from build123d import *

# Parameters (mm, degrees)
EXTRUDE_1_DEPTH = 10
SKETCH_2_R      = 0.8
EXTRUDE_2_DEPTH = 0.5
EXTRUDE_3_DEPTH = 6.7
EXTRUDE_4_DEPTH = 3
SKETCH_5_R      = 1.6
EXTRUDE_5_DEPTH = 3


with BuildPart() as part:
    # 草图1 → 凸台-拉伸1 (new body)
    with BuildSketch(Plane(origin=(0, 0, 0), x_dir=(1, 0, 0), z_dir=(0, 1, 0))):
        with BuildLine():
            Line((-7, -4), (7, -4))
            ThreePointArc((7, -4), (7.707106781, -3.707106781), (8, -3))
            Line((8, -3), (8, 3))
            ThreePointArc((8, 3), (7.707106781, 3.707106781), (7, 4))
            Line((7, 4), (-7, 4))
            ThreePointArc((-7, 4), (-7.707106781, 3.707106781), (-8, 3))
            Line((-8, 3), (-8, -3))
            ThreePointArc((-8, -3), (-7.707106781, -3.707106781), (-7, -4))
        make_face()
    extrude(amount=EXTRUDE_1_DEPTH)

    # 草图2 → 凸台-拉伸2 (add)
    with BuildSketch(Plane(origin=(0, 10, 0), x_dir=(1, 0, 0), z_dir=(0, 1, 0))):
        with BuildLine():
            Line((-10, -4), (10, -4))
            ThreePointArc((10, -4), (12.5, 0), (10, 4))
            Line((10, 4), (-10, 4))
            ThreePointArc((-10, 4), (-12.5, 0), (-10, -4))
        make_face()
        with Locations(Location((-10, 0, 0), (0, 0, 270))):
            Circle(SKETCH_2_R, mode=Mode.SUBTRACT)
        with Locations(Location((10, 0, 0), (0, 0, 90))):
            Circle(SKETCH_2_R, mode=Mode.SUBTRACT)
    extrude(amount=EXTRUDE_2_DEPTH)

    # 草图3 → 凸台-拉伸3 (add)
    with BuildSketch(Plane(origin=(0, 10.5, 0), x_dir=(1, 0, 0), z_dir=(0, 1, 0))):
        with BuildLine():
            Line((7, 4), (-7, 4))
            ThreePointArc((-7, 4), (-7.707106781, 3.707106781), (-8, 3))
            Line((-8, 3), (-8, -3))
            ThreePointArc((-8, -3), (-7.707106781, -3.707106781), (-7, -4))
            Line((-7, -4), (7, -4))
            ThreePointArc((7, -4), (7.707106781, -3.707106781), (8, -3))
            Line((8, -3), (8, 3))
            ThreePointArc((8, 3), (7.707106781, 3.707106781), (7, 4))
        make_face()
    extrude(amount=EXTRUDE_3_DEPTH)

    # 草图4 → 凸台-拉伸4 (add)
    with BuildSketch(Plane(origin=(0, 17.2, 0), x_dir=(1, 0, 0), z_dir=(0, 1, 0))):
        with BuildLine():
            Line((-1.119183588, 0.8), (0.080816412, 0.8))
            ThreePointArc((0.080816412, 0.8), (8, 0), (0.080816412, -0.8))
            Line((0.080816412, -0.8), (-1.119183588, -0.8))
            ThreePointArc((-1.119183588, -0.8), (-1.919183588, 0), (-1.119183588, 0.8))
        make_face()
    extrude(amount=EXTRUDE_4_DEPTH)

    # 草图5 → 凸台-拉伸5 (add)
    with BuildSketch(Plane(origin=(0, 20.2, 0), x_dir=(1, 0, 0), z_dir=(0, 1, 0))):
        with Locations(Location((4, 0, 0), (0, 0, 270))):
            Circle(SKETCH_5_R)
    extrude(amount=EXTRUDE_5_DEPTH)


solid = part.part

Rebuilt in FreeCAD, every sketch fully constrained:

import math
import FreeCAD as App
import Part
import Sketcher
from FreeCAD import Vector
Q = App.Units.Quantity

doc = App.newDocument("Part")
body = doc.addObject("PartDesign::Body", "Body")

sketch1 = body.newObject("Sketcher::SketchObject", "Sketch")
sketch1.AttachmentSupport = (doc.getObject("XZ_Plane"), [""])
sketch1.MapMode = "FlatFace"
sketch1.addGeometry(Part.LineSegment(Vector(-7, 4, 0), Vector(7, 4, 0)), False)
sketch1.addGeometry(Part.ArcOfCircle(Part.Circle(Vector(7, 3, 0), Vector(0, 0, 1), 1), math.radians(0), math.radians(90)), False)
sketch1.addGeometry(Part.LineSegment(Vector(8, 3, 0), Vector(8, -3, 0)), False)
sketch1.addGeometry(Part.ArcOfCircle(Part.Circle(Vector(7, -3, 0), Vector(0, 0, 1), 1), math.radians(-90), math.radians(0)), False)
sketch1.addGeometry(Part.LineSegment(Vector(7, -4, 0), Vector(-7, -4, 0)), False)
sketch1.addGeometry(Part.ArcOfCircle(Part.Circle(Vector(-7, -3, 0), Vector(0, 0, 1), 1), math.radians(-180), math.radians(-90)), False)
sketch1.addGeometry(Part.LineSegment(Vector(-8, -3, 0), Vector(-8, 3, 0)), False)
sketch1.addGeometry(Part.ArcOfCircle(Part.Circle(Vector(-7, 3, 0), Vector(0, 0, 1), 1), math.radians(90), math.radians(180)), False)
sketch1.addConstraint(Sketcher.Constraint("Tangent", 0, 2, 1, 2))
sketch1.addConstraint(Sketcher.Constraint("Tangent", 1, 1, 2, 1))
sketch1.addConstraint(Sketcher.Constraint("Tangent", 2, 2, 3, 2))
sketch1.addConstraint(Sketcher.Constraint("Tangent", 3, 1, 4, 1))
sketch1.addConstraint(Sketcher.Constraint("Tangent", 4, 2, 5, 2))
sketch1.addConstraint(Sketcher.Constraint("Tangent", 5, 1, 6, 1))
sketch1.addConstraint(Sketcher.Constraint("Tangent", 6, 2, 7, 2))
sketch1.addConstraint(Sketcher.Constraint("Tangent", 7, 1, 0, 1))
sketch1.addConstraint(Sketcher.Constraint("Horizontal", 0))
sketch1.addConstraint(Sketcher.Constraint("Vertical", 2))
sketch1.addConstraint(Sketcher.Constraint("Horizontal", 4))
sketch1.addConstraint(Sketcher.Constraint("Vertical", 6))
sketch1.addConstraint(Sketcher.Constraint("Equal", 1, 3))
sketch1.addConstraint(Sketcher.Constraint("Equal", 3, 5))
sketch1.addConstraint(Sketcher.Constraint("Equal", 5, 7))
sketch1.addConstraint(Sketcher.Constraint("Symmetric", 1, 3, 5, 3, -1, 1))
sketch1.addConstraint(Sketcher.Constraint("Radius", 1, Q("1 mm")))
sketch1.addConstraint(Sketcher.Constraint("DistanceX", 0, 1, 0, 2, Q("14 mm")))
sketch1.addConstraint(Sketcher.Constraint("DistanceY", 2, 2, 2, 1, Q("6 mm")))
pad1 = body.newObject("PartDesign::Pad", "Pad")
pad1.Profile = sketch1
pad1.Length = 10
pad1.Reversed = True

sketch2 = body.newObject("Sketcher::SketchObject", "Sketch001")
sketch2.AttachmentSupport = (doc.getObject("XZ_Plane"), [""])
sketch2.MapMode = "FlatFace"
sketch2.AttachmentOffset = App.Placement(Vector(0, 0, -10), App.Rotation())
sketch2.addGeometry(Part.LineSegment(Vector(-10, 4, 0), Vector(10, 4, 0)), False)
sketch2.addGeometry(Part.ArcOfCircle(Part.Circle(Vector(8.05, 0, 0), Vector(0, 0, 1), 4.45), math.radians(-64.010766), math.radians(64.010766)), False)
sketch2.addGeometry(Part.LineSegment(Vector(10, -4, 0), Vector(-10, -4, 0)), False)
sketch2.addGeometry(Part.ArcOfCircle(Part.Circle(Vector(-8.05, 0, 0), Vector(0, 0, 1), 4.45), math.radians(115.989234), math.radians(244.010766)), False)
sketch2.addGeometry(Part.Circle(Vector(-10, 0, 0), Vector(0, 0, 1), 0.8), False)
sketch2.addGeometry(Part.Circle(Vector(10, 0, 0), Vector(0, 0, 1), 0.8), False)
sketch2.addConstraint(Sketcher.Constraint("Coincident", 0, 2, 1, 2))
sketch2.addConstraint(Sketcher.Constraint("Coincident", 1, 1, 2, 1))
sketch2.addConstraint(Sketcher.Constraint("Coincident", 2, 2, 3, 2))
sketch2.addConstraint(Sketcher.Constraint("Coincident", 3, 1, 0, 1))
sketch2.addConstraint(Sketcher.Constraint("Horizontal", 0))
sketch2.addConstraint(Sketcher.Constraint("Horizontal", 2))
sketch2.addConstraint(Sketcher.Constraint("Equal", 1, 3))
sketch2.addConstraint(Sketcher.Constraint("Equal", 4, 5))
sketch2.addConstraint(Sketcher.Constraint("Symmetric", 1, 3, 3, 3, -1, 1))
sketch2.addConstraint(Sketcher.Constraint("Symmetric", 4, 3, 5, 3, -1, 1))
sketch2.addConstraint(Sketcher.Constraint("Symmetric", 0, 2, 1, 1, -1))
sketch2.addConstraint(Sketcher.Constraint("PointOnObject", 4, 3, -1))
sketch2.addConstraint(Sketcher.Constraint("Vertical", 5, 3, 0, 2))
sketch2.addConstraint(Sketcher.Constraint("Diameter", 4, Q("1.6 mm")))
sketch2.addConstraint(Sketcher.Constraint("DistanceX", 0, 1, 0, 2, Q("20 mm")))
sketch2.addConstraint(Sketcher.Constraint("Radius", 1, Q("4.45 mm")))
sketch2.addConstraint(Sketcher.Constraint("DistanceY", -1, 1, 0, 2, Q("4 mm")))
pad2 = body.newObject("PartDesign::Pad", "Pad001")
pad2.Profile = sketch2
pad2.Length = 0.5
pad2.Reversed = True

sketch3 = body.newObject("Sketcher::SketchObject", "Sketch002")
sketch3.AttachmentSupport = (doc.getObject("XZ_Plane"), [""])
sketch3.MapMode = "FlatFace"
sketch3.AttachmentOffset = App.Placement(Vector(0, 0, -10.5), App.Rotation())
sketch3.addGeometry(Part.LineSegment(Vector(7, -4, 0), Vector(-7, -4, 0)), False)
sketch3.addGeometry(Part.ArcOfCircle(Part.Circle(Vector(-7, -3, 0), Vector(0, 0, 1), 1), math.radians(-180), math.radians(-90)), False)
sketch3.addGeometry(Part.LineSegment(Vector(-8, -3, 0), Vector(-8, 3, 0)), False)
sketch3.addGeometry(Part.ArcOfCircle(Part.Circle(Vector(-7, 3, 0), Vector(0, 0, 1), 1), math.radians(90), math.radians(180)), False)
sketch3.addGeometry(Part.LineSegment(Vector(-7, 4, 0), Vector(7, 4, 0)), False)
sketch3.addGeometry(Part.ArcOfCircle(Part.Circle(Vector(7, 3, 0), Vector(0, 0, 1), 1), math.radians(0), math.radians(90)), False)
sketch3.addGeometry(Part.LineSegment(Vector(8, 3, 0), Vector(8, -3, 0)), False)
sketch3.addGeometry(Part.ArcOfCircle(Part.Circle(Vector(7, -3, 0), Vector(0, 0, 1), 1), math.radians(-90), math.radians(0)), False)
sketch3.addConstraint(Sketcher.Constraint("Tangent", 0, 2, 1, 2))
sketch3.addConstraint(Sketcher.Constraint("Tangent", 1, 1, 2, 1))
sketch3.addConstraint(Sketcher.Constraint("Tangent", 2, 2, 3, 2))
sketch3.addConstraint(Sketcher.Constraint("Tangent", 3, 1, 4, 1))
sketch3.addConstraint(Sketcher.Constraint("Tangent", 4, 2, 5, 2))
sketch3.addConstraint(Sketcher.Constraint("Tangent", 5, 1, 6, 1))
sketch3.addConstraint(Sketcher.Constraint("Tangent", 6, 2, 7, 2))
sketch3.addConstraint(Sketcher.Constraint("Tangent", 7, 1, 0, 1))
sketch3.addConstraint(Sketcher.Constraint("Horizontal", 0))
sketch3.addConstraint(Sketcher.Constraint("Vertical", 2))
sketch3.addConstraint(Sketcher.Constraint("Horizontal", 4))
sketch3.addConstraint(Sketcher.Constraint("Vertical", 6))
sketch3.addConstraint(Sketcher.Constraint("Equal", 1, 3))
sketch3.addConstraint(Sketcher.Constraint("Equal", 3, 5))
sketch3.addConstraint(Sketcher.Constraint("Equal", 5, 7))
sketch3.addConstraint(Sketcher.Constraint("Symmetric", 1, 3, 5, 3, -1, 1))
sketch3.addConstraint(Sketcher.Constraint("Radius", 1, Q("1 mm")))
sketch3.addConstraint(Sketcher.Constraint("DistanceX", 0, 2, 0, 1, Q("14 mm")))
sketch3.addConstraint(Sketcher.Constraint("DistanceY", 2, 1, 2, 2, Q("6 mm")))
pad3 = body.newObject("PartDesign::Pad", "Pad002")
pad3.Profile = sketch3
pad3.Length = 6.7
pad3.Reversed = True

sketch4 = body.newObject("Sketcher::SketchObject", "Sketch003")
sketch4.AttachmentSupport = (doc.getObject("XZ_Plane"), [""])
sketch4.MapMode = "FlatFace"
sketch4.AttachmentOffset = App.Placement(Vector(0, 0, -17.2), App.Rotation())
sketch4.addGeometry(Part.LineSegment(Vector(0.080816, -0.8, 0), Vector(-1.119184, -0.8, 0)), False)
sketch4.addGeometry(Part.ArcOfCircle(Part.Circle(Vector(-1.119184, 0, 0), Vector(0, 0, 1), 0.8), math.radians(90), math.radians(270)), False)
sketch4.addGeometry(Part.LineSegment(Vector(-1.119184, 0.8, 0), Vector(0.080816, 0.8, 0)), False)
sketch4.addGeometry(Part.ArcOfCircle(Part.Circle(Vector(4, 0, 0), Vector(0, 0, 1), 4), math.radians(-168.463041), math.radians(168.463041)), False)
sketch4.addConstraint(Sketcher.Constraint("Tangent", 0, 2, 1, 2))
sketch4.addConstraint(Sketcher.Constraint("Tangent", 1, 1, 2, 1))
sketch4.addConstraint(Sketcher.Constraint("Coincident", 2, 2, 3, 2))
sketch4.addConstraint(Sketcher.Constraint("Coincident", 3, 1, 0, 1))
sketch4.addConstraint(Sketcher.Constraint("Horizontal", 0))
sketch4.addConstraint(Sketcher.Constraint("Horizontal", 2))
sketch4.addConstraint(Sketcher.Constraint("Symmetric", 2, 2, 3, 1, -1))
sketch4.addConstraint(Sketcher.Constraint("Radius", 3, Q("4 mm")))
sketch4.addConstraint(Sketcher.Constraint("Radius", 1, Q("0.8 mm")))
sketch4.addConstraint(Sketcher.Constraint("DistanceX", 0, 2, 0, 1, Q("1.2 mm")))
sketch4.addConstraint(Sketcher.Constraint("DistanceX", -1, 1, 3, 3, Q("4 mm")))
pad4 = body.newObject("PartDesign::Pad", "Pad003")
pad4.Profile = sketch4
pad4.Length = 3
pad4.Reversed = True

sketch5 = body.newObject("Sketcher::SketchObject", "Sketch004")
sketch5.AttachmentSupport = (doc.getObject("XZ_Plane"), [""])
sketch5.MapMode = "FlatFace"
sketch5.AttachmentOffset = App.Placement(Vector(0, 0, -20.2), App.Rotation())
sketch5.addGeometry(Part.Circle(Vector(4, 0, 0), Vector(0, 0, 1), 1.6), False)
sketch5.addConstraint(Sketcher.Constraint("PointOnObject", 0, 3, -1))
sketch5.addConstraint(Sketcher.Constraint("Diameter", 0, Q("3.2 mm")))
sketch5.addConstraint(Sketcher.Constraint("DistanceX", -1, 1, 0, 3, Q("4 mm")))
pad5 = body.newObject("PartDesign::Pad", "Pad004")
pad5.Profile = sketch5
pad5.Length = 3
pad5.Reversed = True

doc.recompute()
